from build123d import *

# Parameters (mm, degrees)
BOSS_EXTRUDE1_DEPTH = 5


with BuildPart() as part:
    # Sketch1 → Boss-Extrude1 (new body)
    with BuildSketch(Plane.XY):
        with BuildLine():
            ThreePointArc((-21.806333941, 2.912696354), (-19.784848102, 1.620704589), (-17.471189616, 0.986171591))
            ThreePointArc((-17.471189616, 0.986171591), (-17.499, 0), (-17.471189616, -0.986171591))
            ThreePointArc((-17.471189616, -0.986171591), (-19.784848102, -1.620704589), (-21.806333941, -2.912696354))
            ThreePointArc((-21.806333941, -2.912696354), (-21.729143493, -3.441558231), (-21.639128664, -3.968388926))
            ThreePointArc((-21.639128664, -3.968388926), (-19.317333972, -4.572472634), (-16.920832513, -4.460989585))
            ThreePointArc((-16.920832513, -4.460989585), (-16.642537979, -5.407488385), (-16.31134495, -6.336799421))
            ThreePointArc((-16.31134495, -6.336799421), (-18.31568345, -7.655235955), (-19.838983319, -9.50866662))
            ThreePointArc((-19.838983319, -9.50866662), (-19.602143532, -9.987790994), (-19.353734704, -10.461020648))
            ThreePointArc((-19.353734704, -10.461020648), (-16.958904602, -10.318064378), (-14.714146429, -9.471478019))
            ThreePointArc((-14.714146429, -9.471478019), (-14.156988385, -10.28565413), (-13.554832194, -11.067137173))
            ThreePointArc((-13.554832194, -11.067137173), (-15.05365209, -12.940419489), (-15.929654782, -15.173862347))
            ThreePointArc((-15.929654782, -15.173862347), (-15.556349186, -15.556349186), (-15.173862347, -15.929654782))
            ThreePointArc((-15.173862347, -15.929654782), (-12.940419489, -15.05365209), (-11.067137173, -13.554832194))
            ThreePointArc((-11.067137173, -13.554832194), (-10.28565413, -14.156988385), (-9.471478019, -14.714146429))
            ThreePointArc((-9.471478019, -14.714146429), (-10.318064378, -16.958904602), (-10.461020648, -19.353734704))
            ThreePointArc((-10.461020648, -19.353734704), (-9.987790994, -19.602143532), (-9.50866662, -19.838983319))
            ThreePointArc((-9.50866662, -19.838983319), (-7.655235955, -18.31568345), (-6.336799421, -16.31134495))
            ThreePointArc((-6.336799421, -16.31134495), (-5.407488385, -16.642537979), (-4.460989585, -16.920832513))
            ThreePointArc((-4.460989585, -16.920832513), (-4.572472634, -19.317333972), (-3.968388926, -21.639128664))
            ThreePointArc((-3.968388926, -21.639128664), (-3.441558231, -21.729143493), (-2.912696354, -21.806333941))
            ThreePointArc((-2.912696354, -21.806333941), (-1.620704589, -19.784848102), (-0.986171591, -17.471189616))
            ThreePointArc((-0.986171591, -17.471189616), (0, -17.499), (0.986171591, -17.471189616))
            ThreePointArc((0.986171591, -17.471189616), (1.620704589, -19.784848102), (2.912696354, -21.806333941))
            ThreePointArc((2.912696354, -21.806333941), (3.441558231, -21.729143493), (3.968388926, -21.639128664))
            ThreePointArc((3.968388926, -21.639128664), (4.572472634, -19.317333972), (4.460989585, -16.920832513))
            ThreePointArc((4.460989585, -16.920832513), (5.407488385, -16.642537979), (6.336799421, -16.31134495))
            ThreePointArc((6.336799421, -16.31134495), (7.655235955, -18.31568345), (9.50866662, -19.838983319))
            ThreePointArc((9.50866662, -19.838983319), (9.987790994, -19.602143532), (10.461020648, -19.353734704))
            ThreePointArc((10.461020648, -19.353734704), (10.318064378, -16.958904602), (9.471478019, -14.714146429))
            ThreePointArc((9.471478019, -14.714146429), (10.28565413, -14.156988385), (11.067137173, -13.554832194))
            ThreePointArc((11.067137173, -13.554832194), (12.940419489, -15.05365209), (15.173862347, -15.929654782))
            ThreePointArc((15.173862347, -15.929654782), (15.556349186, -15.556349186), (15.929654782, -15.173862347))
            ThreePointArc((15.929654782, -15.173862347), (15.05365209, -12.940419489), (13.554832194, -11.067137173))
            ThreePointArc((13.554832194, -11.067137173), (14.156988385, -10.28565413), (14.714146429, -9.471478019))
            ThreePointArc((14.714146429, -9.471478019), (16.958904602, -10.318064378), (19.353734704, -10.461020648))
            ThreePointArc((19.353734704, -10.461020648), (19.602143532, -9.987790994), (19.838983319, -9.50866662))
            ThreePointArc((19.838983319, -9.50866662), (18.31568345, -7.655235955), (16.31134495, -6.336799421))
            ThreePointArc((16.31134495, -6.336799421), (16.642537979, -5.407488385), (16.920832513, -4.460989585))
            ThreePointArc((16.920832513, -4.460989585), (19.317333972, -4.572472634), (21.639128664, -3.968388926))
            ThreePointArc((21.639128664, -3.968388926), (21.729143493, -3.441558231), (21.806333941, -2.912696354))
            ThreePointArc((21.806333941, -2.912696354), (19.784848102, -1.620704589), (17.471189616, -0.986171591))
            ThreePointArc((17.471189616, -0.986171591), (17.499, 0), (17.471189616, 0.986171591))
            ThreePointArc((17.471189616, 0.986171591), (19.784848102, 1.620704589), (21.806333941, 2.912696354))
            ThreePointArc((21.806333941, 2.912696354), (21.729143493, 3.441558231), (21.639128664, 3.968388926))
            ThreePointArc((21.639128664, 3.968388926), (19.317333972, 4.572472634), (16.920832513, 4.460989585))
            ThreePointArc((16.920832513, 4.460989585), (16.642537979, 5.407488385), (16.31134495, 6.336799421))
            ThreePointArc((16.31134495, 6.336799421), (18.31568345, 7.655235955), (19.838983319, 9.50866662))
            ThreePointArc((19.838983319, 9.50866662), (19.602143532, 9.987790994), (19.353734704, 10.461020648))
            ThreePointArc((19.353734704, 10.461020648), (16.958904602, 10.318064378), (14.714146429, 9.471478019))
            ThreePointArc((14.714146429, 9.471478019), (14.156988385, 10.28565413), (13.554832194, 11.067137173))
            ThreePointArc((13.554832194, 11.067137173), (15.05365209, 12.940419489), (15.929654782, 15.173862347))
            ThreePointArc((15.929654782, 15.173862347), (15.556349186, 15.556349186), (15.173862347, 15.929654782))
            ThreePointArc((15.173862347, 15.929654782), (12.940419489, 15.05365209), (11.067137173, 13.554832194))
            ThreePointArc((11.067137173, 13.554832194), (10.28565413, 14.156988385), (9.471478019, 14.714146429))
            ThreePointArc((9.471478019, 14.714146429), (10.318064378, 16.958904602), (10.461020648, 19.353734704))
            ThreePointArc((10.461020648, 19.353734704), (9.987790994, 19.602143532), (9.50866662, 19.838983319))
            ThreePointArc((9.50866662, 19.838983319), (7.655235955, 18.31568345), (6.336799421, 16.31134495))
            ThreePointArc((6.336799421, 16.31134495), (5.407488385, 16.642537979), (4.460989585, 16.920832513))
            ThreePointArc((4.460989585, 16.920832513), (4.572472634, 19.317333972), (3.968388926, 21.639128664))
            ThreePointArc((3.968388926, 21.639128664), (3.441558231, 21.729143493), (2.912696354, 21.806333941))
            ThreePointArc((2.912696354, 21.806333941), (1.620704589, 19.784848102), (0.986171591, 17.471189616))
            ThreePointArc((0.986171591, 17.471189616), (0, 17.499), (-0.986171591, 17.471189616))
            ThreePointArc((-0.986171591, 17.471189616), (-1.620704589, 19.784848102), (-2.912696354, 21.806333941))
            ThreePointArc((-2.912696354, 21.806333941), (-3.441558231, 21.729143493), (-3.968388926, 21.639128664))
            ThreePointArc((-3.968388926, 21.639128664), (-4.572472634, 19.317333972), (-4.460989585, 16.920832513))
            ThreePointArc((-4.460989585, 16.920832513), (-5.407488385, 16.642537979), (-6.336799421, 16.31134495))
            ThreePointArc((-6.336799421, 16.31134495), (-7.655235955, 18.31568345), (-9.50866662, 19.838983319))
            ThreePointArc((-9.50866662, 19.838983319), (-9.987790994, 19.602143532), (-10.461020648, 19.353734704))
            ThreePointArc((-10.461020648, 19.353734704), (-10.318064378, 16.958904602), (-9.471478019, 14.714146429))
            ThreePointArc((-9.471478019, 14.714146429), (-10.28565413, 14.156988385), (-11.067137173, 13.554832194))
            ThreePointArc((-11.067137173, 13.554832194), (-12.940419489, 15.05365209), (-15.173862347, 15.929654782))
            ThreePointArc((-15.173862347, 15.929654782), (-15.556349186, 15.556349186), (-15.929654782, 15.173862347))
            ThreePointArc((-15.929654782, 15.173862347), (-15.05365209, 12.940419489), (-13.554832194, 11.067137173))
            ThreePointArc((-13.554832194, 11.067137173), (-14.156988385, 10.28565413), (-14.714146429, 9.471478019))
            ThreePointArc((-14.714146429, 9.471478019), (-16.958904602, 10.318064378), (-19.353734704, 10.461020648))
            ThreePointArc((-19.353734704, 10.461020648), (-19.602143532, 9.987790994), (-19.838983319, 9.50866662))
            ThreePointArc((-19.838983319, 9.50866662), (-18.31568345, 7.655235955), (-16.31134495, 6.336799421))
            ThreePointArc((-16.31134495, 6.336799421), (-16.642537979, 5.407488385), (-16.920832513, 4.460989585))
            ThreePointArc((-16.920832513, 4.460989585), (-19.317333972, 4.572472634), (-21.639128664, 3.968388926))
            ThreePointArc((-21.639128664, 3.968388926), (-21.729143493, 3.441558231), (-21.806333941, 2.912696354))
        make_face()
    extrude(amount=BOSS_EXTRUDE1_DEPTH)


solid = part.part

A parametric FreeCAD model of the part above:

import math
import FreeCAD as App
import Part
import Sketcher

V = App.Vector

doc = App.newDocument("Part")
body = doc.addObject("PartDesign::Body", "Body")

# Sketch on XY plane
sketch1 = doc.addObject("Sketcher::SketchObject", "Sketch")
body.addObject(sketch1)
sketch1.AttachmentSupport = (doc.XY_Plane, [""])
sketch1.MapMode = "FlatFace"
sketch1.addGeometry([
    Part.ArcOfCircle(Part.Circle(V(-16.5, 8.9, 0), V(0, 0, 1), 8), math.radians(-131), math.radians(-97)),  # 0
    Part.ArcOfCircle(Part.Circle(V(0, 0, 0), V(0, 0, 1), 17.5), math.radians(176.77), math.radians(183.23)),  # 1
    Part.ArcOfCircle(Part.Circle(V(-16.5, -8.9, 0), V(0, 0, 1), 8), math.radians(97), math.radians(131)),  # 2
    Part.ArcOfCircle(Part.Circle(V(0, 0, 0), V(0, 0, 1), 22), math.radians(-172.39), math.radians(-169.61)),  # 3
    Part.ArcOfCircle(Part.Circle(V(-18.5, 3.4, 0), V(0, 0, 1), 8), math.radians(-113), math.radians(-79)),  # 4
    Part.ArcOfCircle(Part.Circle(V(0, 0, 0), V(0, 0, 1), 17.5), math.radians(-165.23), math.radians(-158.77)),  # 5
    Part.ArcOfCircle(Part.Circle(V(-13, -13.6, 0), V(0, 0, 1), 8), math.radians(115), math.radians(149)),  # 6
    Part.ArcOfCircle(Part.Circle(V(0, 0, 0), V(0, 0, 1), 22), math.radians(-154.39), math.radians(-151.61)),  # 7
    Part.ArcOfCircle(Part.Circle(V(-18.6, -2.5, 0), V(0, 0, 1), 8), math.radians(-95), math.radians(-61)),  # 8
    Part.ArcOfCircle(Part.Circle(V(0, 0, 0), V(0, 0, 1), 17.5), math.radians(-147.23), math.radians(-140.77)),  # 9
    Part.ArcOfCircle(Part.Circle(V(-8.1, -16.9, 0), V(0, 0, 1), 8), math.radians(133), math.radians(167)),  # 10
    Part.ArcOfCircle(Part.Circle(V(0, 0, 0), V(0, 0, 1), 22), math.radians(-136.39), math.radians(-133.61)),  # 11
    Part.ArcOfCircle(Part.Circle(V(-16.9, -8.1, 0), V(0, 0, 1), 8), math.radians(-77), math.radians(-43)),  # 12
    Part.ArcOfCircle(Part.Circle(V(0, 0, 0), V(0, 0, 1), 17.5), math.radians(-129.23), math.radians(-122.77)),  # 13
    Part.ArcOfCircle(Part.Circle(V(-2.5, -18.6, 0), V(0, 0, 1), 8), math.radians(151), math.radians(185)),  # 14
    Part.ArcOfCircle(Part.Circle(V(0, 0, 0), V(0, 0, 1), 22), math.radians(-118.39), math.radians(-115.61)),  # 15
    Part.ArcOfCircle(Part.Circle(V(-13.6, -13, 0), V(0, 0, 1), 8), math.radians(-59), math.radians(-25)),  # 16
    Part.ArcOfCircle(Part.Circle(V(0, 0, 0), V(0, 0, 1), 17.5), math.radians(-111.23), math.radians(-104.77)),  # 17
    Part.ArcOfCircle(Part.Circle(V(3.4, -18.5, 0), V(0, 0, 1), 8), math.radians(169), math.radians(203)),  # 18
    Part.ArcOfCircle(Part.Circle(V(0, 0, 0), V(0, 0, 1), 22), math.radians(-100.39), math.radians(-97.61)),  # 19
    Part.ArcOfCircle(Part.Circle(V(-8.9, -16.5, 0), V(0, 0, 1), 8), math.radians(-41), math.radians(-7)),  # 20
    Part.ArcOfCircle(Part.Circle(V(0, 0, 0), V(0, 0, 1), 17.5), math.radians(-93.23), math.radians(-86.77)),  # 21
    Part.ArcOfCircle(Part.Circle(V(8.9, -16.5, 0), V(0, 0, 1), 8), math.radians(-173), math.radians(-139)),  # 22
    Part.ArcOfCircle(Part.Circle(V(0, 0, 0), V(0, 0, 1), 22), math.radians(-82.39), math.radians(-79.61)),  # 23
    Part.ArcOfCircle(Part.Circle(V(-3.4, -18.5, 0), V(0, 0, 1), 8), math.radians(-23), math.radians(11)),  # 24
    Part.ArcOfCircle(Part.Circle(V(0, 0, 0), V(0, 0, 1), 17.5), math.radians(-75.23), math.radians(-68.77)),  # 25
    Part.ArcOfCircle(Part.Circle(V(13.6, -13, 0), V(0, 0, 1), 8), math.radians(-155), math.radians(-121)),  # 26
    Part.ArcOfCircle(Part.Circle(V(0, 0, 0), V(0, 0, 1), 22), math.radians(-64.39), math.radians(-61.61)),  # 27
    Part.ArcOfCircle(Part.Circle(V(2.5, -18.6, 0), V(0, 0, 1), 8), math.radians(-5), math.radians(29)),  # 28
    Part.ArcOfCircle(Part.Circle(V(0, 0, 0), V(0, 0, 1), 17.5), math.radians(-57.23), math.radians(-50.77)),  # 29
    Part.ArcOfCircle(Part.Circle(V(16.9, -8.1, 0), V(0, 0, 1), 8), math.radians(-137), math.radians(-103)),  # 30
    Part.ArcOfCircle(Part.Circle(V(0, 0, 0), V(0, 0, 1), 22), math.radians(-46.39), math.radians(-43.61)),  # 31
    Part.ArcOfCircle(Part.Circle(V(8.1, -16.9, 0), V(0, 0, 1), 8), math.radians(13), math.radians(47)),  # 32
    Part.ArcOfCircle(Part.Circle(V(0, 0, 0), V(0, 0, 1), 17.5), math.radians(-39.23), math.radians(-32.77)),  # 33
    Part.ArcOfCircle(Part.Circle(V(18.6, -2.5, 0), V(0, 0, 1), 8), math.radians(-119), math.radians(-85)),  # 34
    Part.ArcOfCircle(Part.Circle(V(0, 0, 0), V(0, 0, 1), 22), math.radians(-28.39), math.radians(-25.61)),  # 35
    Part.ArcOfCircle(Part.Circle(V(13, -13.6, 0), V(0, 0, 1), 8), math.radians(31), math.radians(65)),  # 36
    Part.ArcOfCircle(Part.Circle(V(0, 0, 0), V(0, 0, 1), 17.5), math.radians(-21.23), math.radians(-14.77)),  # 37
    Part.ArcOfCircle(Part.Circle(V(18.5, 3.4, 0), V(0, 0, 1), 8), math.radians(-101), math.radians(-67)),  # 38
    Part.ArcOfCircle(Part.Circle(V(0, 0, 0), V(0, 0, 1), 22), math.radians(-10.39), math.radians(-7.61)),  # 39
    Part.ArcOfCircle(Part.Circle(V(16.5, -8.9, 0), V(0, 0, 1), 8), math.radians(49), math.radians(83)),  # 40
    Part.ArcOfCircle(Part.Circle(V(0, 0, 0), V(0, 0, 1), 17.5), math.radians(-3.23), math.radians(3.23)),  # 41
    Part.ArcOfCircle(Part.Circle(V(16.5, 8.9, 0), V(0, 0, 1), 8), math.radians(-83), math.radians(-49)),  # 42
    Part.ArcOfCircle(Part.Circle(V(0, 0, 0), V(0, 0, 1), 22), math.radians(7.61), math.radians(10.39)),  # 43
    Part.ArcOfCircle(Part.Circle(V(18.5, -3.4, 0), V(0, 0, 1), 8), math.radians(67), math.radians(101)),  # 44
    Part.ArcOfCircle(Part.Circle(V(0, 0, 0), V(0, 0, 1), 17.5), math.radians(14.77), math.radians(21.23)),  # 45
    Part.ArcOfCircle(Part.Circle(V(13, 13.6, 0), V(0, 0, 1), 8), math.radians(-65), math.radians(-31)),  # 46
    Part.ArcOfCircle(Part.Circle(V(0, 0, 0), V(0, 0, 1), 22), math.radians(25.61), math.radians(28.39)),  # 47
    Part.ArcOfCircle(Part.Circle(V(18.6, 2.5, 0), V(0, 0, 1), 8), math.radians(85), math.radians(119)),  # 48
    Part.ArcOfCircle(Part.Circle(V(0, 0, 0), V(0, 0, 1), 17.5), math.radians(32.77), math.radians(39.23)),  # 49
    Part.ArcOfCircle(Part.Circle(V(8.1, 16.9, 0), V(0, 0, 1), 8), math.radians(-47), math.radians(-13)),  # 50
    Part.ArcOfCircle(Part.Circle(V(0, 0, 0), V(0, 0, 1), 22), math.radians(43.61), math.radians(46.39)),  # 51
    Part.ArcOfCircle(Part.Circle(V(16.9, 8.1, 0), V(0, 0, 1), 8), math.radians(103), math.radians(137)),  # 52
    Part.ArcOfCircle(Part.Circle(V(0, 0, 0), V(0, 0, 1), 17.5), math.radians(50.77), math.radians(57.23)),  # 53
    Part.ArcOfCircle(Part.Circle(V(2.5, 18.6, 0), V(0, 0, 1), 8), math.radians(-29), math.radians(5)),  # 54
    Part.ArcOfCircle(Part.Circle(V(0, 0, 0), V(0, 0, 1), 22), math.radians(61.61), math.radians(64.39)),  # 55
    Part.ArcOfCircle(Part.Circle(V(13.6, 13, 0), V(0, 0, 1), 8), math.radians(121), math.radians(155)),  # 56
    Part.ArcOfCircle(Part.Circle(V(0, 0, 0), V(0, 0, 1), 17.5), math.radians(68.77), math.radians(75.23)),  # 57
    Part.ArcOfCircle(Part.Circle(V(-3.4, 18.5, 0), V(0, 0, 1), 8), math.radians(-11), math.radians(23)),  # 58
    Part.ArcOfCircle(Part.Circle(V(0, 0, 0), V(0, 0, 1), 22), math.radians(79.61), math.radians(82.39)),  # 59
    Part.ArcOfCircle(Part.Circle(V(8.9, 16.5, 0), V(0, 0, 1), 8), math.radians(139), math.radians(173)),  # 60
    Part.ArcOfCircle(Part.Circle(V(0, 0, 0), V(0, 0, 1), 17.5), math.radians(86.77), math.radians(93.23)),  # 61
    Part.ArcOfCircle(Part.Circle(V(-8.9, 16.5, 0), V(0, 0, 1), 8), math.radians(7), math.radians(41)),  # 62
    Part.ArcOfCircle(Part.Circle(V(0, 0, 0), V(0, 0, 1), 22), math.radians(97.61), math.radians(100.39)),  # 63
    Part.ArcOfCircle(Part.Circle(V(3.4, 18.5, 0), V(0, 0, 1), 8), math.radians(157), math.radians(191)),  # 64
    Part.ArcOfCircle(Part.Circle(V(0, 0, 0), V(0, 0, 1), 17.5), math.radians(104.77), math.radians(111.23)),  # 65
    Part.ArcOfCircle(Part.Circle(V(-13.6, 13, 0), V(0, 0, 1), 8), math.radians(25), math.radians(59)),  # 66
    Part.ArcOfCircle(Part.Circle(V(0, 0, 0), V(0, 0, 1), 22), math.radians(115.61), math.radians(118.39)),  # 67
    Part.ArcOfCircle(Part.Circle(V(-2.5, 18.6, 0), V(0, 0, 1), 8), math.radians(175), math.radians(209)),  # 68
    Part.ArcOfCircle(Part.Circle(V(0, 0, 0), V(0, 0, 1), 17.5), math.radians(122.77), math.radians(129.23)),  # 69
    Part.ArcOfCircle(Part.Circle(V(-16.9, 8.1, 0), V(0, 0, 1), 8), math.radians(43), math.radians(77)),  # 70
    Part.ArcOfCircle(Part.Circle(V(0, 0, 0), V(0, 0, 1), 22), math.radians(133.61), math.radians(136.39)),  # 71
    Part.ArcOfCircle(Part.Circle(V(-8.1, 16.9, 0), V(0, 0, 1), 8), math.radians(-167), math.radians(-133)),  # 72
    Part.ArcOfCircle(Part.Circle(V(0, 0, 0), V(0, 0, 1), 17.5), math.radians(140.77), math.radians(147.23)),  # 73
    Part.ArcOfCircle(Part.Circle(V(-18.6, 2.5, 0), V(0, 0, 1), 8), math.radians(61), math.radians(95)),  # 74
    Part.ArcOfCircle(Part.Circle(V(0, 0, 0), V(0, 0, 1), 22), math.radians(151.61), math.radians(154.39)),  # 75
    Part.ArcOfCircle(Part.Circle(V(-13, 13.6, 0), V(0, 0, 1), 8), math.radians(-149), math.radians(-115)),  # 76
    Part.ArcOfCircle(Part.Circle(V(0, 0, 0), V(0, 0, 1), 17.5), math.radians(158.77), math.radians(165.23)),  # 77
    Part.ArcOfCircle(Part.Circle(V(-18.5, -3.4, 0), V(0, 0, 1), 8), math.radians(79), math.radians(113)),  # 78
    Part.ArcOfCircle(Part.Circle(V(0, 0, 0), V(0, 0, 1), 22), math.radians(169.61), math.radians(172.39)),  # 79
], False)
sketch1.addConstraint([
    Sketcher.Constraint("Coincident", 0, 2, 1, 1),
    Sketcher.Constraint("Coincident", 1, 2, 2, 1),
    Sketcher.Constraint("Coincident", 2, 2, 3, 1),
    Sketcher.Constraint("Coincident", 3, 2, 4, 1),
    Sketcher.Constraint("Coincident", 4, 2, 5, 1),
    Sketcher.Constraint("Coincident", 5, 2, 6, 1),
    Sketcher.Constraint("Coincident", 6, 2, 7, 1),
    Sketcher.Constraint("Coincident", 7, 2, 8, 1),
    Sketcher.Constraint("Coincident", 8, 2, 9, 1),
    Sketcher.Constraint("Coincident", 9, 2, 10, 1),
    Sketcher.Constraint("Coincident", 10, 2, 11, 1),
    Sketcher.Constraint("Coincident", 11, 2, 12, 1),
    Sketcher.Constraint("Coincident", 12, 2, 13, 1),
    Sketcher.Constraint("Coincident", 13, 2, 14, 1),
    Sketcher.Constraint("Coincident", 14, 2, 15, 1),
    Sketcher.Constraint("Coincident", 15, 2, 16, 1),
    Sketcher.Constraint("Coincident", 16, 2, 17, 1),
    Sketcher.Constraint("Coincident", 17, 2, 18, 1),
    Sketcher.Constraint("Coincident", 18, 2, 19, 1),
    Sketcher.Constraint("Coincident", 19, 2, 20, 1),
    Sketcher.Constraint("Coincident", 20, 2, 21, 1),
    Sketcher.Constraint("Coincident", 21, 2, 22, 1),
    Sketcher.Constraint("Coincident", 22, 2, 23, 1),
    Sketcher.Constraint("Coincident", 23, 2, 24, 1),
    Sketcher.Constraint("Coincident", 24, 2, 25, 1),
    Sketcher.Constraint("Coincident", 25, 2, 26, 1),
    Sketcher.Constraint("Coincident", 26, 2, 27, 1),
    Sketcher.Constraint("Coincident", 27, 2, 28, 1),
    Sketcher.Constraint("Coincident", 28, 2, 29, 1),
    Sketcher.Constraint("Coincident", 29, 2, 30, 1),
    Sketcher.Constraint("Coincident", 30, 2, 31, 1),
    Sketcher.Constraint("Coincident", 31, 2, 32, 1),
    Sketcher.Constraint("Coincident", 32, 2, 33, 1),
    Sketcher.Constraint("Coincident", 33, 2, 34, 1),
    Sketcher.Constraint("Coincident", 34, 2, 35, 1),
    Sketcher.Constraint("Coincident", 35, 2, 36, 1),
    Sketcher.Constraint("Coincident", 36, 2, 37, 1),
    Sketcher.Constraint("Coincident", 37, 2, 38, 1),
    Sketcher.Constraint("Coincident", 38, 2, 39, 1),
    Sketcher.Constraint("Coincident", 39, 2, 40, 1),
    Sketcher.Constraint("Coincident", 40, 2, 41, 1),
    Sketcher.Constraint("Coincident", 41, 2, 42, 1),
    Sketcher.Constraint("Coincident", 42, 2, 43, 1),
    Sketcher.Constraint("Coincident", 43, 2, 44, 1),
    Sketcher.Constraint("Coincident", 44, 2, 45, 1),
    Sketcher.Constraint("Coincident", 45, 2, 46, 1),
    Sketcher.Constraint("Coincident", 46, 2, 47, 1),
    Sketcher.Constraint("Coincident", 47, 2, 48, 1),
    Sketcher.Constraint("Coincident", 48, 2, 49, 1),
    Sketcher.Constraint("Coincident", 49, 2, 50, 1),
    Sketcher.Constraint("Coincident", 50, 2, 51, 1),
    Sketcher.Constraint("Coincident", 51, 2, 52, 1),
    Sketcher.Constraint("Coincident", 52, 2, 53, 1),
    Sketcher.Constraint("Coincident", 53, 2, 54, 1),
    Sketcher.Constraint("Coincident", 54, 2, 55, 1),
    Sketcher.Constraint("Coincident", 55, 2, 56, 1),
    Sketcher.Constraint("Coincident", 56, 2, 57, 1),
    Sketcher.Constraint("Coincident", 57, 2, 58, 1),
    Sketcher.Constraint("Coincident", 58, 2, 59, 1),
    Sketcher.Constraint("Coincident", 59, 2, 60, 1),
    Sketcher.Constraint("Coincident", 60, 2, 61, 1),
    Sketcher.Constraint("Coincident", 61, 2, 62, 1),
    Sketcher.Constraint("Coincident", 62, 2, 63, 1),
    Sketcher.Constraint("Coincident", 63, 2, 64, 1),
    Sketcher.Constraint("Coincident", 64, 2, 65, 1),
    Sketcher.Constraint("Coincident", 65, 2, 66, 1),
    Sketcher.Constraint("Coincident", 66, 2, 67, 1),
    Sketcher.Constraint("Coincident", 67, 2, 68, 1),
    Sketcher.Constraint("Coincident", 68, 2, 69, 1),
    Sketcher.Constraint("Coincident", 69, 2, 70, 1),
    Sketcher.Constraint("Coincident", 70, 2, 71, 1),
    Sketcher.Constraint("Coincident", 71, 2, 72, 1),
    Sketcher.Constraint("Coincident", 72, 2, 73, 1),
    Sketcher.Constraint("Coincident", 73, 2, 74, 1),
    Sketcher.Constraint("Coincident", 74, 2, 75, 1),
    Sketcher.Constraint("Coincident", 75, 2, 76, 1),
    Sketcher.Constraint("Coincident", 76, 2, 77, 1),
    Sketcher.Constraint("Coincident", 77, 2, 78, 1),
    Sketcher.Constraint("Coincident", 78, 2, 79, 1),
    Sketcher.Constraint("Coincident", 79, 2, 0, 1),
    Sketcher.Constraint("Coincident", 1, 3, -1, 1),
    Sketcher.Constraint("Coincident", 3, 3, -1, 1),
    Sketcher.Constraint("Coincident", 5, 3, -1, 1),
    Sketcher.Constraint("Coincident", 7, 3, -1, 1),
    Sketcher.Constraint("Coincident", 9, 3, -1, 1),
    Sketcher.Constraint("Coincident", 11, 3, -1, 1),
    Sketcher.Constraint("Coincident", 13, 3, -1, 1),
    Sketcher.Constraint("Coincident", 15, 3, -1, 1),
    Sketcher.Constraint("Coincident", 17, 3, -1, 1),
    Sketcher.Constraint("Coincident", 19, 3, -1, 1),
    Sketcher.Constraint("Coincident", 21, 3, -1, 1),
    Sketcher.Constraint("Coincident", 23, 3, -1, 1),
    Sketcher.Constraint("Coincident", 25, 3, -1, 1),
    Sketcher.Constraint("Coincident", 27, 3, -1, 1),
    Sketcher.Constraint("Coincident", 29, 3, -1, 1),
    Sketcher.Constraint("Coincident", 31, 3, -1, 1),
    Sketcher.Constraint("Coincident", 33, 3, -1, 1),
    Sketcher.Constraint("Coincident", 35, 3, -1, 1),
    Sketcher.Constraint("Coincident", 37, 3, -1, 1),
    Sketcher.Constraint("Coincident", 39, 3, -1, 1),
    Sketcher.Constraint("Coincident", 41, 3, -1, 1),
    Sketcher.Constraint("Coincident", 43, 3, -1, 1),
    Sketcher.Constraint("Coincident", 45, 3, -1, 1),
    Sketcher.Constraint("Coincident", 47, 3, -1, 1),
    Sketcher.Constraint("Coincident", 49, 3, -1, 1),
    Sketcher.Constraint("Coincident", 51, 3, -1, 1),
    Sketcher.Constraint("Coincident", 53, 3, -1, 1),
    Sketcher.Constraint("Coincident", 55, 3, -1, 1),
    Sketcher.Constraint("Coincident", 57, 3, -1, 1),
    Sketcher.Constraint("Coincident", 59, 3, -1, 1),
    Sketcher.Constraint("Coincident", 61, 3, -1, 1),
    Sketcher.Constraint("Coincident", 63, 3, -1, 1),
    Sketcher.Constraint("Coincident", 65, 3, -1, 1),
    Sketcher.Constraint("Coincident", 67, 3, -1, 1),
    Sketcher.Constraint("Coincident", 69, 3, -1, 1),
    Sketcher.Constraint("Coincident", 71, 3, -1, 1),
    Sketcher.Constraint("Coincident", 73, 3, -1, 1),
    Sketcher.Constraint("Coincident", 75, 3, -1, 1),
    Sketcher.Constraint("Coincident", 77, 3, -1, 1),
    Sketcher.Constraint("Coincident", 79, 3, -1, 1),
    Sketcher.Constraint("Equal", 0, 2),
    Sketcher.Constraint("Equal", 2, 4),
    Sketcher.Constraint("Equal", 1, 5),
    Sketcher.Constraint("Equal", 4, 6),
    Sketcher.Constraint("Equal", 3, 7),
    Sketcher.Constraint("Equal", 6, 8),
    Sketcher.Constraint("Equal", 5, 9),
    Sketcher.Constraint("Equal", 8, 10),
    Sketcher.Constraint("Equal", 7, 11),
    Sketcher.Constraint("Equal", 10, 12),
    Sketcher.Constraint("Equal", 9, 13),
    Sketcher.Constraint("Equal", 12, 14),
    Sketcher.Constraint("Equal", 11, 15),
    Sketcher.Constraint("Equal", 14, 16),
    Sketcher.Constraint("Equal", 13, 17),
    Sketcher.Constraint("Equal", 16, 18),
    Sketcher.Constraint("Equal", 15, 19),
    Sketcher.Constraint("Equal", 18, 20),
    Sketcher.Constraint("Equal", 17, 21),
    Sketcher.Constraint("Equal", 20, 22),
    Sketcher.Constraint("Equal", 19, 23),
    Sketcher.Constraint("Equal", 22, 24),
    Sketcher.Constraint("Equal", 21, 25),
    Sketcher.Constraint("Equal", 24, 26),
    Sketcher.Constraint("Equal", 23, 27),
    Sketcher.Constraint("Equal", 26, 28),
    Sketcher.Constraint("Equal", 25, 29),
    Sketcher.Constraint("Equal", 28, 30),
    Sketcher.Constraint("Equal", 27, 31),
    Sketcher.Constraint("Equal", 30, 32),
    Sketcher.Constraint("Equal", 29, 33),
    Sketcher.Constraint("Equal", 32, 34),
    Sketcher.Constraint("Equal", 31, 35),
    Sketcher.Constraint("Equal", 34, 36),
    Sketcher.Constraint("Equal", 33, 37),
    Sketcher.Constraint("Equal", 36, 38),
    Sketcher.Constraint("Equal", 35, 39),
    Sketcher.Constraint("Equal", 38, 40),
    Sketcher.Constraint("Equal", 37, 41),
    Sketcher.Constraint("Equal", 40, 42),
    Sketcher.Constraint("Equal", 39, 43),
    Sketcher.Constraint("Equal", 42, 44),
    Sketcher.Constraint("Equal", 41, 45),
    Sketcher.Constraint("Equal", 44, 46),
    Sketcher.Constraint("Equal", 43, 47),
    Sketcher.Constraint("Equal", 46, 48),
    Sketcher.Constraint("Equal", 45, 49),
    Sketcher.Constraint("Equal", 48, 50),
    Sketcher.Constraint("Equal", 47, 51),
    Sketcher.Constraint("Equal", 50, 52),
    Sketcher.Constraint("Equal", 49, 53),
    Sketcher.Constraint("Equal", 52, 54),
    Sketcher.Constraint("Equal", 51, 55),
    Sketcher.Constraint("Equal", 54, 56),
    Sketcher.Constraint("Equal", 53, 57),
    Sketcher.Constraint("Equal", 56, 58),
    Sketcher.Constraint("Equal", 55, 59),
    Sketcher.Constraint("Equal", 58, 60),
    Sketcher.Constraint("Equal", 57, 61),
    Sketcher.Constraint("Equal", 60, 62),
    Sketcher.Constraint("Equal", 59, 63),
    Sketcher.Constraint("Equal", 62, 64),
    Sketcher.Constraint("Equal", 61, 65),
    Sketcher.Constraint("Equal", 64, 66),
    Sketcher.Constraint("Equal", 63, 67),
    Sketcher.Constraint("Equal", 66, 68),
    Sketcher.Constraint("Equal", 65, 69),
    Sketcher.Constraint("Equal", 68, 70),
    Sketcher.Constraint("Equal", 67, 71),
    Sketcher.Constraint("Equal", 70, 72),
    Sketcher.Constraint("Equal", 69, 73),
    Sketcher.Constraint("Equal", 72, 74),
    Sketcher.Constraint("Equal", 71, 75),
    Sketcher.Constraint("Equal", 74, 76),
    Sketcher.Constraint("Equal", 73, 77),
    Sketcher.Constraint("Equal", 76, 78),
    Sketcher.Constraint("Equal", 75, 79),
    Sketcher.Constraint("Symmetric", 0, 3, 40, 3, -1, 1),
    Sketcher.Constraint("Symmetric", 2, 3, 42, 3, -1, 1),
    Sketcher.Constraint("Symmetric", 4, 3, 44, 3, -1, 1),
    Sketcher.Constraint("Symmetric", 6, 3, 46, 3, -1, 1),
    Sketcher.Constraint("Symmetric", 8, 3, 48, 3, -1, 1),
    Sketcher.Constraint("Symmetric", 10, 3, 50, 3, -1, 1),
    Sketcher.Constraint("Symmetric", 12, 3, 52, 3, -1, 1),
    Sketcher.Constraint("Symmetric", 14, 3, 54, 3, -1, 1),
    Sketcher.Constraint("Symmetric", 16, 3, 56, 3, -1, 1),
    Sketcher.Constraint("Symmetric", 18, 3, 58, 3, -1, 1),
    Sketcher.Constraint("Symmetric", 20, 3, 60, 3, -1, 1),
    Sketcher.Constraint("Symmetric", 22, 3, 62, 3, -1, 1),
    Sketcher.Constraint("Symmetric", 24, 3, 64, 3, -1, 1),
    Sketcher.Constraint("Symmetric", 26, 3, 66, 3, -1, 1),
    Sketcher.Constraint("Symmetric", 28, 3, 68, 3, -1, 1),
    Sketcher.Constraint("Symmetric", 30, 3, 70, 3, -1, 1),
    Sketcher.Constraint("Symmetric", 32, 3, 72, 3, -1, 1),
    Sketcher.Constraint("Symmetric", 34, 3, 74, 3, -1, 1),
    Sketcher.Constraint("Symmetric", 36, 3, 76, 3, -1, 1),
    Sketcher.Constraint("Symmetric", 38, 3, 78, 3, -1, 1),
    Sketcher.Constraint("Symmetric", 20, 3, 22, 3, -2),
    Sketcher.Constraint("Symmetric", 18, 3, 24, 3, -2),
    Sketcher.Constraint("Symmetric", 16, 3, 26, 3, -2),
    Sketcher.Constraint("Symmetric", 14, 3, 28, 3, -2),
    Sketcher.Constraint("Symmetric", 12, 3, 30, 3, -2),
    Sketcher.Constraint("Symmetric", 10, 3, 32, 3, -2),
    Sketcher.Constraint("Symmetric", 8, 3, 34, 3, -2),
    Sketcher.Constraint("Symmetric", 6, 3, 36, 3, -2),
    Sketcher.Constraint("Symmetric", 4, 3, 38, 3, -2),
    Sketcher.Constraint("Symmetric", 2, 3, 40, 3, -2),
    Sketcher.Constraint("Radius", 0, 8.0),
    Sketcher.Constraint("Radius", 3, 22.0),
    Sketcher.Constraint("Radius", 1, 17.499),
    Sketcher.Constraint("DistanceY", 5, 2, -1, 1, 6.336799),
    Sketcher.Constraint("DistanceX", 16, 2, -1, 1, 6.336799),
    Sketcher.Constraint("DistanceX", 0, 3, -1, 1, 16.536031),
    Sketcher.Constraint("DistanceX", 4, 3, -1, 1, 18.486631),
    Sketcher.Constraint("DistanceY", -1, 1, 4, 3, 3.384281),
    Sketcher.Constraint("DistanceX", 6, 3, -1, 1, 12.966768),
    Sketcher.Constraint("DistanceX", 8, 3, -1, 1, 18.627631),
    Sketcher.Constraint("DistanceY", 8, 3, -1, 1, 2.49404),
    Sketcher.Constraint("DistanceX", 10, 3, -1, 1, 8.128228),
    Sketcher.Constraint("DistanceY", 10, 3, -1, 1, 16.945229),
    Sketcher.Constraint("DistanceX", 12, 3, -1, 1, 16.945229),
    Sketcher.Constraint("DistanceY", 12, 3, -1, 1, 8.128228),
    Sketcher.Constraint("DistanceX", 14, 3, -1, 1, 2.49404),
    Sketcher.Constraint("DistanceY", 14, 3, -1, 1, 18.627631),
    Sketcher.Constraint("DistanceX", 16, 3, -1, 1, 13.60411),
    Sketcher.Constraint("DistanceX", -1, 1, 18, 3, 3.384281),
    Sketcher.Constraint("DistanceY", 18, 3, -1, 1, 18.486631),
    Sketcher.Constraint("DistanceY", 20, 3, -1, 1, 16.536031),
    Sketcher.Constraint("DistanceX", 0, 2, -1, 1, 17.47119),
    Sketcher.Constraint("DistanceX", 20, 2, -1, 1, 0.986172),
])
pad1 = doc.addObject("PartDesign::Pad", "Pad")
body.addObject(pad1)
pad1.Profile = sketch1
pad1.Length = 5

doc.recompute()
